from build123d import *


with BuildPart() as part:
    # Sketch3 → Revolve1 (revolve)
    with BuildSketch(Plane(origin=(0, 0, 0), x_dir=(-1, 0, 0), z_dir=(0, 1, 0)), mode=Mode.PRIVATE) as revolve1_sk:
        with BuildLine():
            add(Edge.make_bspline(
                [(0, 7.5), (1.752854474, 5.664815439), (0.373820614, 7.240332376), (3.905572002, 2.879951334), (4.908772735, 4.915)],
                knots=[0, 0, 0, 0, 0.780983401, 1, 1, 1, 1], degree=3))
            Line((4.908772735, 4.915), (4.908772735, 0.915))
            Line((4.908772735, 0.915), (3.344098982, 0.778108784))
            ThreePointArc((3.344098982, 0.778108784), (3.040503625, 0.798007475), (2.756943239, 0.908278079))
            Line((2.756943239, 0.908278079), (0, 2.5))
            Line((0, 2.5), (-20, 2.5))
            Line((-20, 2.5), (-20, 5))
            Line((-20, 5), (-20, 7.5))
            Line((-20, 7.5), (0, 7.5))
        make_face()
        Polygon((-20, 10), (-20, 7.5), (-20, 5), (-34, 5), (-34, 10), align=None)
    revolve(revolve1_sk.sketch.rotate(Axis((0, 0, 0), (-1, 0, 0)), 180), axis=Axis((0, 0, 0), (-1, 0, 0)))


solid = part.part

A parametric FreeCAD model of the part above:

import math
import FreeCAD as App
import Part
import Sketcher
from FreeCAD import Vector
Q = App.Units.Quantity

doc = App.newDocument("Part")
body = doc.addObject("PartDesign::Body", "Body")

sketch1 = body.newObject("Sketcher::SketchObject", "Sketch")
sketch1.AttachmentSupport = (doc.getObject("XZ_Plane"), [""])
sketch1.MapMode = "FlatFace"
sketch1.addGeometry([
    Part.BSplineCurve([Vector(0, 7.5, 0), Vector(-1.752854, 5.664815, 0), Vector(-0.373821, 7.240332, 0), Vector(-3.905572, 2.879951, 0), Vector(-4.908773, 4.915, 0)], [4, 1, 4], [0, 0.780983401, 1], False, 3, [1, 1, 1, 1, 1], False),
    Part.LineSegment(Vector(0, 7.5, 0), Vector(20, 7.5, 0)),
    Part.LineSegment(Vector(20, 7.5, 0), Vector(20, 10, 0)),
    Part.LineSegment(Vector(20, 10, 0), Vector(34, 10, 0)),
    Part.LineSegment(Vector(34, 10, 0), Vector(34, 5, 0)),
    Part.LineSegment(Vector(34, 5, 0), Vector(20, 5, 0)),
    Part.LineSegment(Vector(20, 5, 0), Vector(20, 2.5, 0)),
    Part.LineSegment(Vector(20, 2.5, 0), Vector(0, 2.5, 0)),
    Part.LineSegment(Vector(0, 2.5, 0), Vector(-2.756943, 0.908278, 0)),
    Part.ArcOfCircle(Part.Circle(Vector(-3.256943, 1.774303, 0), Vector(0, 0, 1), 1), math.radians(-95), math.radians(-60)),
    Part.LineSegment(Vector(-3.344099, 0.778109, 0), Vector(-4.908773, 0.915, 0)),
    Part.LineSegment(Vector(-4.908773, 0.915, 0), Vector(-4.908773, 4.915, 0)),
], False)
sketch1.addConstraint([
    Sketcher.Constraint("Block", 0),
    Sketcher.Constraint("Coincident", 0, 1, 1, 1),
    Sketcher.Constraint("Coincident", 1, 2, 2, 1),
    Sketcher.Constraint("Coincident", 2, 2, 3, 1),
    Sketcher.Constraint("Coincident", 3, 2, 4, 1),
    Sketcher.Constraint("Coincident", 4, 2, 5, 1),
    Sketcher.Constraint("Coincident", 5, 2, 6, 1),
    Sketcher.Constraint("Coincident", 6, 2, 7, 1),
    Sketcher.Constraint("Coincident", 7, 2, 8, 1),
    Sketcher.Constraint("Tangent", 8, 2, 9, 2),
    Sketcher.Constraint("Tangent", 9, 1, 10, 1),
    Sketcher.Constraint("Coincident", 10, 2, 11, 1),
    Sketcher.Constraint("Coincident", 11, 2, 0, 2),
    Sketcher.Constraint("Horizontal", 1),
    Sketcher.Constraint("Vertical", 2),
    Sketcher.Constraint("Horizontal", 3),
    Sketcher.Constraint("Vertical", 4),
    Sketcher.Constraint("Horizontal", 5),
    Sketcher.Constraint("Vertical", 6),
    Sketcher.Constraint("Horizontal", 7),
    Sketcher.Constraint("Vertical", 11),
    Sketcher.Constraint("PointOnObject", 7, 2, -2),
    Sketcher.Constraint("Vertical", 2, 2, 5, 2),
    Sketcher.Constraint("Equal", 2, 6),
    Sketcher.Constraint("Radius", 9, Q("1 mm")),
    Sketcher.Constraint("DistanceX", 1, 1, 1, 2, Q("20 mm")),
    Sketcher.Constraint("DistanceX", 3, 1, 3, 2, Q("14 mm")),
    Sketcher.Constraint("DistanceY", 4, 2, 4, 1, Q("5 mm")),
    Sketcher.Constraint("DistanceY", 11, 1, 11, 2, Q("4 mm")),
    Sketcher.Constraint("Angle", 8, Q("-150 deg")),
    Sketcher.Constraint("Angle", 10, Q("175 deg")),
    Sketcher.Constraint("DistanceY", 2, 1, 2, 2, Q("2.5 mm")),
])
revolution = body.newObject("PartDesign::Revolution", "Revolution")
revolution.Profile = sketch1
revolution.ReferenceAxis = (sketch1, ["H_Axis"])
revolution.Angle = 360

doc.recompute()
